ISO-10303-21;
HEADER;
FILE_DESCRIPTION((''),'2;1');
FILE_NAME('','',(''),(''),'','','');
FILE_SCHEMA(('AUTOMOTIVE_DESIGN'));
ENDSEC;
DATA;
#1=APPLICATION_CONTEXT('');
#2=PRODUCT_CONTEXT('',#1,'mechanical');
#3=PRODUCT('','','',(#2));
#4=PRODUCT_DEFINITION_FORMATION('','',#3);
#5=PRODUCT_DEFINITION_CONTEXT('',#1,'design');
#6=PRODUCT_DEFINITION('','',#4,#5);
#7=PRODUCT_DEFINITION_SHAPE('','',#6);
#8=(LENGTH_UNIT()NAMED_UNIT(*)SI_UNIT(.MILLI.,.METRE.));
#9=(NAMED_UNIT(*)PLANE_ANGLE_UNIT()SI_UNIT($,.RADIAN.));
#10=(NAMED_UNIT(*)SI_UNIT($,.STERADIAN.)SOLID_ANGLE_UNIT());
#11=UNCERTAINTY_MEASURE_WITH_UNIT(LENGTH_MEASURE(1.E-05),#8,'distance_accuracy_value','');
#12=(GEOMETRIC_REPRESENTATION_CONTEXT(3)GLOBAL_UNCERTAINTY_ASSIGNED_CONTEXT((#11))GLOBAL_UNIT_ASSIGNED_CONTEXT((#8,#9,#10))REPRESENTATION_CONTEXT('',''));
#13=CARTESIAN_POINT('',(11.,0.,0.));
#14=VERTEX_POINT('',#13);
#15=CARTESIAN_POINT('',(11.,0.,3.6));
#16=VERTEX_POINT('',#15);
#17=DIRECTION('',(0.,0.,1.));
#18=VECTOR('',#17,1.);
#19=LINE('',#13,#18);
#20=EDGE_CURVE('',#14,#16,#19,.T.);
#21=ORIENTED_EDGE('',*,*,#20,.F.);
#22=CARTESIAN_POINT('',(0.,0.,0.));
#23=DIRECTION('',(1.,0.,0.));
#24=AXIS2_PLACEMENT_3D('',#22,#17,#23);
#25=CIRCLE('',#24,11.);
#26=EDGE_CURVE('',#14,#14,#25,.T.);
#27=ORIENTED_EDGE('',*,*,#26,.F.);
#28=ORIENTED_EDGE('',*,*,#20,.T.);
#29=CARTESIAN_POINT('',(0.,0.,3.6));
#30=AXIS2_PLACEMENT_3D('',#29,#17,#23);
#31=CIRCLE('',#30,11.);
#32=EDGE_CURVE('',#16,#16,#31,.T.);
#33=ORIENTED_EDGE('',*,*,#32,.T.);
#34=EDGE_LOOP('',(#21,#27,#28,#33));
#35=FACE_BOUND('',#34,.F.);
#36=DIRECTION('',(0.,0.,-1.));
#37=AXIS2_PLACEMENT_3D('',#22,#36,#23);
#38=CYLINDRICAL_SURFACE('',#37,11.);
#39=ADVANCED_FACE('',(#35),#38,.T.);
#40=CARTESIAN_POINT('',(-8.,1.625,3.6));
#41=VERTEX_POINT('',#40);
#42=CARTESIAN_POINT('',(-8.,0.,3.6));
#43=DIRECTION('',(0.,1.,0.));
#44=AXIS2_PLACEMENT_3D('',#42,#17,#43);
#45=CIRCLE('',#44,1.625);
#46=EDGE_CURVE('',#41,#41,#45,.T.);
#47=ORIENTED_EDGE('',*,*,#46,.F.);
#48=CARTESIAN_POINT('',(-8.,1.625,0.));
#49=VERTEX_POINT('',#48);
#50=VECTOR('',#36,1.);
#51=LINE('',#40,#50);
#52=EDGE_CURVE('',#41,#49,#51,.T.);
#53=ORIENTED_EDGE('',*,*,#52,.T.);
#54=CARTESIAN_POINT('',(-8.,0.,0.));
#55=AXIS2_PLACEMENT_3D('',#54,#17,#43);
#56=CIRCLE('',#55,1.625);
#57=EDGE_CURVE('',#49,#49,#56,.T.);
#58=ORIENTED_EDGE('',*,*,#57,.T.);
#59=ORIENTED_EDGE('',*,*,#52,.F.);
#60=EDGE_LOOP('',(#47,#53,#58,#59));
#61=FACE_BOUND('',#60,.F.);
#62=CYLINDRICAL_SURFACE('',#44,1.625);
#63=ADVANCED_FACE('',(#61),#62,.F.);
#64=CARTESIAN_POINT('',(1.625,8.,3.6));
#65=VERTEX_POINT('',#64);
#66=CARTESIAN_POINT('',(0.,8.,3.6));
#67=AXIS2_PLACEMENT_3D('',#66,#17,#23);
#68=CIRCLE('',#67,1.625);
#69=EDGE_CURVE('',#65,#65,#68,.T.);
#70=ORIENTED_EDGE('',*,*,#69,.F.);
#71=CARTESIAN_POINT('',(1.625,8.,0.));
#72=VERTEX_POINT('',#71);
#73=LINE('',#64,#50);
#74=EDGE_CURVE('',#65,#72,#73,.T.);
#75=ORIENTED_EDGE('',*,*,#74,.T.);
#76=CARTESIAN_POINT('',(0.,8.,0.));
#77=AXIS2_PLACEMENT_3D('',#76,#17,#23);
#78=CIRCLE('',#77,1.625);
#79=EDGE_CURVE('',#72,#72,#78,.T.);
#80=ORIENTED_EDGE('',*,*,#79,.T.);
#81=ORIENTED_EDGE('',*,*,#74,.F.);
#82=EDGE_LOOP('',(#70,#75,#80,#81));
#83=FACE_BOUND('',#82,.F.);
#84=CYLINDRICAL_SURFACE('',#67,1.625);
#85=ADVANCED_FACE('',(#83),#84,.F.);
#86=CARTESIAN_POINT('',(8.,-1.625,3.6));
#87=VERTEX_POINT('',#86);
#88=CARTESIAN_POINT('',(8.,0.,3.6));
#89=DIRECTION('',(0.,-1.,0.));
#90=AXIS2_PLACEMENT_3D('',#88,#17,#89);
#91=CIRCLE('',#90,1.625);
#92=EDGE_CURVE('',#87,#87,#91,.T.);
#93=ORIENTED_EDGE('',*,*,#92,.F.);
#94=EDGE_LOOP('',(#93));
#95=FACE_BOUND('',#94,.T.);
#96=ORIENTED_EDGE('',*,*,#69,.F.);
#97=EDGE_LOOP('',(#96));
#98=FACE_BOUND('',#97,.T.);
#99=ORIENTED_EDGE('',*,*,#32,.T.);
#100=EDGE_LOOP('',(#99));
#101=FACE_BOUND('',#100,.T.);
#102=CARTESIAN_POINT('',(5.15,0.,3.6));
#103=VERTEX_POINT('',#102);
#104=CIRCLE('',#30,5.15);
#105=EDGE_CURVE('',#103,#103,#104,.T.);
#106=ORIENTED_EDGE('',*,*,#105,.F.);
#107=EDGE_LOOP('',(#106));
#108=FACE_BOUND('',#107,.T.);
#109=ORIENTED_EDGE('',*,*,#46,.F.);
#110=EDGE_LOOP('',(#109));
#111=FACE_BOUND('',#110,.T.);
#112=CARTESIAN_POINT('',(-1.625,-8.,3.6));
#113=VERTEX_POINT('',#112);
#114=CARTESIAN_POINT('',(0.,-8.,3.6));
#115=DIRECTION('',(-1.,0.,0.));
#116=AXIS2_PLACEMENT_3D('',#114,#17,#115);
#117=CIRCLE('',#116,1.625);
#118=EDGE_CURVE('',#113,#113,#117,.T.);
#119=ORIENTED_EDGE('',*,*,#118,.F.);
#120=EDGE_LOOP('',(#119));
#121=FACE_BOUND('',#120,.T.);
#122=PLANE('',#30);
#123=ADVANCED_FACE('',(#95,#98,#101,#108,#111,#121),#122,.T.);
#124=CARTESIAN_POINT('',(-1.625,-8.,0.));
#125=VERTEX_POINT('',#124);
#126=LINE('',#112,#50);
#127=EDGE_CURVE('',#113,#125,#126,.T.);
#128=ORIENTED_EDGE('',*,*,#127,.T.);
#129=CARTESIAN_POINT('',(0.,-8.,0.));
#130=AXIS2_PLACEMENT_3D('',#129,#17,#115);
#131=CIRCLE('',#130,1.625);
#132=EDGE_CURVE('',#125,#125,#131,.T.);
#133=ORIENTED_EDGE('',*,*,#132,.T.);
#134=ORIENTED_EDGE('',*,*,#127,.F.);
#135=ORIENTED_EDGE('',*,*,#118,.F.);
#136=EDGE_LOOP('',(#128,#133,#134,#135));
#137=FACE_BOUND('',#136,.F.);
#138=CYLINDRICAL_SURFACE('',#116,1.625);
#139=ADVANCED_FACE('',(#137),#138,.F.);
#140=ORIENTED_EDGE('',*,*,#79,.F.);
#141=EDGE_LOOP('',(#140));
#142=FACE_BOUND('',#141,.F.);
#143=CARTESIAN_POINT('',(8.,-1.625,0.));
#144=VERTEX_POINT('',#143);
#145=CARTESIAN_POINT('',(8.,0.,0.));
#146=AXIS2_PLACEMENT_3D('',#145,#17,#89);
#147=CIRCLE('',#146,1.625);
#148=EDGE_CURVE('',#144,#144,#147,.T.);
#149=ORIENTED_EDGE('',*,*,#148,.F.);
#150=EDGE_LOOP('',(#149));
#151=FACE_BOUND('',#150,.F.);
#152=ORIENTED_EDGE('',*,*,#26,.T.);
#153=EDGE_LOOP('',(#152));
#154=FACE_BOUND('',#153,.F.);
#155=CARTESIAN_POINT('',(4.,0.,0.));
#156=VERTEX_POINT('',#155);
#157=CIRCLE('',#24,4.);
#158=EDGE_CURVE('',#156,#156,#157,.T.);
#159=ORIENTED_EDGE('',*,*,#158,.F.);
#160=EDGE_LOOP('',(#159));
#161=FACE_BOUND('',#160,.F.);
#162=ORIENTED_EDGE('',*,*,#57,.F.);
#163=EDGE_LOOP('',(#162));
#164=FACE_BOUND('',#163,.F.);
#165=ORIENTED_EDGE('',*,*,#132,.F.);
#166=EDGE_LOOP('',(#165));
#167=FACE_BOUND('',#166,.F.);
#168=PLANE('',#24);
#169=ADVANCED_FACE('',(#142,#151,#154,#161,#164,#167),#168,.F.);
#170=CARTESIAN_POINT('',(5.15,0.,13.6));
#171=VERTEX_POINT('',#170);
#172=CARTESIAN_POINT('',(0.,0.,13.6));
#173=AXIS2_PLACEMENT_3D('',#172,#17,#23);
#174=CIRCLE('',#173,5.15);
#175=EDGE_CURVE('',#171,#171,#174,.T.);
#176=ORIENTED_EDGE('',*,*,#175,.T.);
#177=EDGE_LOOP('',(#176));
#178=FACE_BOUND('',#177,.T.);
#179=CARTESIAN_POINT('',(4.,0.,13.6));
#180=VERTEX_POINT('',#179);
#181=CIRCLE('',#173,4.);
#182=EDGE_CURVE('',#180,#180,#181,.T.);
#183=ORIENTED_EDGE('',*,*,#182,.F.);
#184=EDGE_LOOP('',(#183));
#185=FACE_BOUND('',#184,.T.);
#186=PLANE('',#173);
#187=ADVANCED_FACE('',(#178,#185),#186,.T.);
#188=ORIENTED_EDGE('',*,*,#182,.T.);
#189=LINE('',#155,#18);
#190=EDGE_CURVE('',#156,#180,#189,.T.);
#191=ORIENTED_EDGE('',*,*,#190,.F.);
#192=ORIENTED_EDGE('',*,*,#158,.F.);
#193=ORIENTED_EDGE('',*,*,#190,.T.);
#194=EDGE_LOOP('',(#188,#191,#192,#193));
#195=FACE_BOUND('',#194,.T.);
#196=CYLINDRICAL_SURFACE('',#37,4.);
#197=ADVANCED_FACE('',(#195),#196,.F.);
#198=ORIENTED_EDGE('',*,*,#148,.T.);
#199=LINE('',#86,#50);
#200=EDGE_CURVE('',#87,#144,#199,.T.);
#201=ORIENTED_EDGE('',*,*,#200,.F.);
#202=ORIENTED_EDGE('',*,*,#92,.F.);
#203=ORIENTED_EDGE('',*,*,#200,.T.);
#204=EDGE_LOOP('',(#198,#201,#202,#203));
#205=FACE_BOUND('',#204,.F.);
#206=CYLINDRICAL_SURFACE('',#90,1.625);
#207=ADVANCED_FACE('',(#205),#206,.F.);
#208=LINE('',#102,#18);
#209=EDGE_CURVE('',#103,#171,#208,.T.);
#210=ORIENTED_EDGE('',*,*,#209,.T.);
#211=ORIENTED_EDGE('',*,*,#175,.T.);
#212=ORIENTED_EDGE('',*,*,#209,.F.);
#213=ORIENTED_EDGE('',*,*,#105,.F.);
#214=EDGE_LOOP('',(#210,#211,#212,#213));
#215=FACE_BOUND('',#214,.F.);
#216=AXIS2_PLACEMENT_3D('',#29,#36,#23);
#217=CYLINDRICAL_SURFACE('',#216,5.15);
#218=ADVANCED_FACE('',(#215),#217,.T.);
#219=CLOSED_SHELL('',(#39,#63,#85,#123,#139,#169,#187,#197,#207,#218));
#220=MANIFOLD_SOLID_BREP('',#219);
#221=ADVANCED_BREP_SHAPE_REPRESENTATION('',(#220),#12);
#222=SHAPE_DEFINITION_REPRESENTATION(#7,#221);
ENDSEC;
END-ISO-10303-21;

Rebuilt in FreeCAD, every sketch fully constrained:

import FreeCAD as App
import Part
import Sketcher

doc = App.newDocument("Part")
body = doc.addObject("PartDesign::Body", "Body")

sketch1 = doc.addObject("Sketcher::SketchObject", "Sketch")
body.addObject(sketch1)
sketch1.AttachmentSupport = (doc.XY_Plane, [""])
sketch1.MapMode = "FlatFace"
sketch1.addGeometry([
    Part.Circle(App.Vector(0, 0, 0), App.Vector(0, 0, 1), 11),
    Part.Circle(App.Vector(0, 0, 0), App.Vector(0, 0, 1), 4),
], False)
sketch1.addConstraint([
    Sketcher.Constraint("Coincident", 0, 3, -1, 1),
    Sketcher.Constraint("Coincident", 1, 3, -1, 1),
    Sketcher.Constraint("Diameter", 0, 22.0),
    Sketcher.Constraint("Diameter", 1, 8.0),
])
pad1 = doc.addObject("PartDesign::Pad", "Pad")
body.addObject(pad1)
pad1.Profile = sketch1
pad1.Length = 3.6

sketch2 = doc.addObject("Sketcher::SketchObject", "Sketch001")
body.addObject(sketch2)
sketch2.AttachmentSupport = (doc.XY_Plane, [""])
sketch2.MapMode = "FlatFace"
sketch2.AttachmentOffset = App.Placement(App.Vector(0, 0, 3.6), App.Rotation())
sketch2.addGeometry([
    Part.Circle(App.Vector(0, 0, 0), App.Vector(0, 0, 1), 5.2),
    Part.Circle(App.Vector(0, 0, 0), App.Vector(0, 0, 1), 4),
], False)
sketch2.addConstraint([
    Sketcher.Constraint("Coincident", 0, 3, -1, 1),
    Sketcher.Constraint("Coincident", 1, 3, -1, 1),
    Sketcher.Constraint("Diameter", 0, 10.3),
    Sketcher.Constraint("Diameter", 1, 8.0),
])
pad2 = doc.addObject("PartDesign::Pad", "Pad001")
body.addObject(pad2)
pad2.Profile = sketch2
pad2.Length = 10

sketch3 = doc.addObject("Sketcher::SketchObject", "Sketch002")
body.addObject(sketch3)
sketch3.AttachmentSupport = (doc.XY_Plane, [""])
sketch3.MapMode = "FlatFace"
sketch3.AttachmentOffset = App.Placement(App.Vector(0, 0, 3.6), App.Rotation())
sketch3.addGeometry(Part.Circle(App.Vector(0, 8, 0), App.Vector(0, 0, 1), 1.6), False)
sketch3.addConstraint([
    Sketcher.Constraint("PointOnObject", 0, 3, -2),
    Sketcher.Constraint("Diameter", 0, 3.25),
    Sketcher.Constraint("DistanceY", -1, 1, 0, 3, 8.0),
])
pocket1 = doc.addObject("PartDesign::Pocket", "Pocket")
body.addObject(pocket1)
pocket1.Profile = sketch3
pocket1.Length = 10
doc.recompute()

polarpattern = doc.addObject("PartDesign::PolarPattern", "PolarPattern")
body.addObject(polarpattern)
polarpattern.Originals = [pocket1]
polarpattern.Axis = (doc.Z_Axis, [""])
polarpattern.Angle = 360
polarpattern.Occurrences = 4
body.Tip = polarpattern

doc.recompute()
